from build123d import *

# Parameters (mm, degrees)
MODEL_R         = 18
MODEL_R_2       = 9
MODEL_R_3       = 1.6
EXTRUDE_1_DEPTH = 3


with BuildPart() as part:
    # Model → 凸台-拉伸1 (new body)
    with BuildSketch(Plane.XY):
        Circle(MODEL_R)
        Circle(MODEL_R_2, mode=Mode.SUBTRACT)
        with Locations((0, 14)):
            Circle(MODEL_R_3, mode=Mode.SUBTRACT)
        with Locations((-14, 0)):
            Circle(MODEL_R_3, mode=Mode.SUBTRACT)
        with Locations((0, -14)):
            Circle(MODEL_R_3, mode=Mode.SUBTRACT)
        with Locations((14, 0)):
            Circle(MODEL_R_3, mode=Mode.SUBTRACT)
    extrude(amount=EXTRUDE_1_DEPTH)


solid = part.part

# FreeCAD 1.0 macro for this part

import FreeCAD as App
import Part
import Sketcher

V = App.Vector

doc = App.newDocument("Part")
body = doc.addObject("PartDesign::Body", "Body")

sketch1 = doc.addObject("Sketcher::SketchObject", "Sketch")
body.addObject(sketch1)
sketch1.AttachmentSupport = (doc.XY_Plane, [""])
sketch1.MapMode = "FlatFace"
sketch1.addGeometry([
    Part.Circle(V(0, 0, 0), V(0, 0, 1), 18),
    Part.Circle(V(0, -14, 0), V(0, 0, 1), 1.6),
    Part.Circle(V(-14, 0, 0), V(0, 0, 1), 1.6),
    Part.Circle(V(0, 0, 0), V(0, 0, 1), 9),
    Part.Circle(V(14, 0, 0), V(0, 0, 1), 1.6),
    Part.Circle(V(0, 14, 0), V(0, 0, 1), 1.6),
], False)
sketch1.addConstraint([
    Sketcher.Constraint("Coincident", 0, 3, -1, 1),
    Sketcher.Constraint("Coincident", 3, 3, -1, 1),
    Sketcher.Constraint("Equal", 1, 2),
    Sketcher.Constraint("Equal", 2, 4),
    Sketcher.Constraint("Equal", 4, 5),
    Sketcher.Constraint("Symmetric", 2, 3, 4, 3, -1, 1),
    Sketcher.Constraint("Symmetric", 1, 3, 5, 3, -1, 1),
    Sketcher.Constraint("PointOnObject", 1, 3, -2),
    Sketcher.Constraint("PointOnObject", 2, 3, -1),
    Sketcher.Constraint("Diameter", 0, 36.0),
    Sketcher.Constraint("Diameter", 3, 18.0),
    Sketcher.Constraint("Diameter", 1, 3.2),
    Sketcher.Constraint("DistanceY", 1, 3, -1, 1, 14.0),
    Sketcher.Constraint("DistanceX", 2, 3, -1, 1, 14.0),
])
pad1 = doc.addObject("PartDesign::Pad", "Pad")
body.addObject(pad1)
pad1.Profile = sketch1
pad1.Length = 3

doc.recompute()
